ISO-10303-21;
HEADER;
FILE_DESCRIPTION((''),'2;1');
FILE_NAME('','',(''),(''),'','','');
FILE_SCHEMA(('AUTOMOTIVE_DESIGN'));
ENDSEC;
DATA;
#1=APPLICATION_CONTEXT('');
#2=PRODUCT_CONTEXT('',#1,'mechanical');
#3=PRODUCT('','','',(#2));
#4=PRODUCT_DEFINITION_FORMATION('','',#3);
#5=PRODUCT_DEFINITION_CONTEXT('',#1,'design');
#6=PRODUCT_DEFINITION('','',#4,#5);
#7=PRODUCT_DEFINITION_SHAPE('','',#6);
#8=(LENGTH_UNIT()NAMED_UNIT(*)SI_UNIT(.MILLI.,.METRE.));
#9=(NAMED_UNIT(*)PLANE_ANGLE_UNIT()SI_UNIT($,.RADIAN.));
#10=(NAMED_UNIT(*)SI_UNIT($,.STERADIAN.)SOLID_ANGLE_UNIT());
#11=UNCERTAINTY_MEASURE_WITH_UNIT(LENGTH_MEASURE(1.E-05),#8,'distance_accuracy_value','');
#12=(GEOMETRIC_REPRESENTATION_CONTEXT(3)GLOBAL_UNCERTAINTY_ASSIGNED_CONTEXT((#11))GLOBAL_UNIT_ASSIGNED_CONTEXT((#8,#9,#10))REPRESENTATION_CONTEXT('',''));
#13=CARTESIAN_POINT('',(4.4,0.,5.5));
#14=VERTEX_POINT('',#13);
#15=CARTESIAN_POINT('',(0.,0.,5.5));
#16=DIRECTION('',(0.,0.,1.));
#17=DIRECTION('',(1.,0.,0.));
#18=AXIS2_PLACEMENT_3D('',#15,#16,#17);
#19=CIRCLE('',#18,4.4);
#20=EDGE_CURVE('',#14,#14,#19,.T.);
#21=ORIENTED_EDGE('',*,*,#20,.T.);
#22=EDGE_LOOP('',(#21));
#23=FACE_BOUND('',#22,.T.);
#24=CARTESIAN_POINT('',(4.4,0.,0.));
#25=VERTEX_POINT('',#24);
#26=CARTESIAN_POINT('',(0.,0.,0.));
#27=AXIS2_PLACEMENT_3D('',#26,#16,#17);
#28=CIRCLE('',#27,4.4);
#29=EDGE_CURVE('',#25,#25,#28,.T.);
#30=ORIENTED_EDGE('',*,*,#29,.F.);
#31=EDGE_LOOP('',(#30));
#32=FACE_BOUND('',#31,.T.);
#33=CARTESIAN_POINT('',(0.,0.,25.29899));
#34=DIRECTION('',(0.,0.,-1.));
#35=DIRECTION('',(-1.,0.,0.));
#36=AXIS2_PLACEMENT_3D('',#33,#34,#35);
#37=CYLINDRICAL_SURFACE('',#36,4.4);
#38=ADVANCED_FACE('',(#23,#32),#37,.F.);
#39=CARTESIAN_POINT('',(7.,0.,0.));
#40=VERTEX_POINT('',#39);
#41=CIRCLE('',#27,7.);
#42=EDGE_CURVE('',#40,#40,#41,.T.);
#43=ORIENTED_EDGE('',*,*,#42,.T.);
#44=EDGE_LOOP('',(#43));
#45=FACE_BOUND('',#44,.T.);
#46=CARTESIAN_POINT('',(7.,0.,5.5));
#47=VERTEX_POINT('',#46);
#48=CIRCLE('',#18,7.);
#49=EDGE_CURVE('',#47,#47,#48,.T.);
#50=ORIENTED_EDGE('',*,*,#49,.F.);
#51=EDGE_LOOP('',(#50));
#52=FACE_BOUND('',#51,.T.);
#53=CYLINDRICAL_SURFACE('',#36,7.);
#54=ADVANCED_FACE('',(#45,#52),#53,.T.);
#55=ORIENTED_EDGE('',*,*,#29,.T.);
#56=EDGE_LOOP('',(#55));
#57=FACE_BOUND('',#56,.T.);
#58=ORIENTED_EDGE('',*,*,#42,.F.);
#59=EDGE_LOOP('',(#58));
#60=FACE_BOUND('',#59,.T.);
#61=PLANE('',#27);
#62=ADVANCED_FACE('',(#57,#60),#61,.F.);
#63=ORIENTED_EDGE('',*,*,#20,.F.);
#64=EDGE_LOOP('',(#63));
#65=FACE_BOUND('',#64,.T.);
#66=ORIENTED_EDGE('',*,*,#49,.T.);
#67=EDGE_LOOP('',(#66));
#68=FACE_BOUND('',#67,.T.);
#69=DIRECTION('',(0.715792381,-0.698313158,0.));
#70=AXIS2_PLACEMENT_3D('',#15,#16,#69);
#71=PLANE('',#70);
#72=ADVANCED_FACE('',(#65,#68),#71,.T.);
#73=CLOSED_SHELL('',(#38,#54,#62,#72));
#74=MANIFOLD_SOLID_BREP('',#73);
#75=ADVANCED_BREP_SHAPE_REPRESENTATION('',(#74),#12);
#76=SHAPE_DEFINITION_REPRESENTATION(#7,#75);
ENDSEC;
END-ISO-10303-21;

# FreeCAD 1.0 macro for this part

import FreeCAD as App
import Part
import Sketcher

doc = App.newDocument("Part")
body = doc.addObject("PartDesign::Body", "Body")

# Sketch on XY plane
sketch1 = doc.addObject("Sketcher::SketchObject", "Sketch")
body.addObject(sketch1)
sketch1.AttachmentSupport = (doc.XY_Plane, [""])
sketch1.MapMode = "FlatFace"
sketch1.addGeometry([
    Part.Circle(App.Vector(0, 0, 0), App.Vector(0, 0, 1), 7),
    Part.Circle(App.Vector(0, 0, 0), App.Vector(0, 0, 1), 4.4),
], False)
sketch1.addConstraint([
    Sketcher.Constraint("Coincident", 0, 3, -1, 1),
    Sketcher.Constraint("Coincident", 1, 3, -1, 1),
    Sketcher.Constraint("Diameter", 0, 14.0),
    Sketcher.Constraint("Diameter", 1, 8.8),
])
pad1 = doc.addObject("PartDesign::Pad", "Pad")
body.addObject(pad1)
pad1.Profile = sketch1
pad1.Length = 5.5

doc.recompute()
